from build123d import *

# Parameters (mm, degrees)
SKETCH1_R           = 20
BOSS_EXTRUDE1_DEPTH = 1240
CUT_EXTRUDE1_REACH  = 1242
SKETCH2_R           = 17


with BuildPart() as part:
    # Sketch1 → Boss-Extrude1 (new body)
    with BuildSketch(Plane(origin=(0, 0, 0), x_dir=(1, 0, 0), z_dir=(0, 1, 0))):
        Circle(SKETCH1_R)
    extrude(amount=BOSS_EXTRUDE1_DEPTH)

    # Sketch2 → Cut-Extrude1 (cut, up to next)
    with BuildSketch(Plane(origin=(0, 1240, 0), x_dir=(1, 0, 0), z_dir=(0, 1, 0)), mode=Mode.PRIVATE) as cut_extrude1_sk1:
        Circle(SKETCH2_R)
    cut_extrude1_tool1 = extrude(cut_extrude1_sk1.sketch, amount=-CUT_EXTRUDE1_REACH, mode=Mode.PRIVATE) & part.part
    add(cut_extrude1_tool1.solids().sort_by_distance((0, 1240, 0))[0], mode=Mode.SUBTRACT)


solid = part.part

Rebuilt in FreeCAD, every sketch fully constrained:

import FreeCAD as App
import Part
import Sketcher

doc = App.newDocument("Part")
body = doc.addObject("PartDesign::Body", "Body")

sketch1 = body.newObject("Sketcher::SketchObject", "Sketch")
sketch1.AttachmentSupport = (doc.getObject("XZ_Plane"), [""])
sketch1.MapMode = "FlatFace"
sketch1.addGeometry(Part.Circle(App.Vector(0, 0, 0), App.Vector(0, 0, 1), 20), False)
sketch1.addConstraint([
    Sketcher.Constraint("Coincident", 0, 3, -1, 1),
    Sketcher.Constraint("Diameter", 0, 40.0),
])
pad1 = body.newObject("PartDesign::Pad", "Pad")
pad1.Profile = sketch1
pad1.Length = 1240
pad1.Reversed = True

sketch2 = body.newObject("Sketcher::SketchObject", "Sketch001")
sketch2.AttachmentSupport = (doc.getObject("XZ_Plane"), [""])
sketch2.MapMode = "FlatFace"
sketch2.AttachmentOffset = App.Placement(App.Vector(0, 0, -1240), App.Rotation())
sketch2.addGeometry(Part.Circle(App.Vector(0, 0, 0), App.Vector(0, 0, 1), 17), False)
sketch2.addConstraint([
    Sketcher.Constraint("Coincident", 0, 3, -1, 1),
    Sketcher.Constraint("Diameter", 0, 34.0),
])
pocket1 = body.newObject("PartDesign::Pocket", "Pocket")
pocket1.Profile = sketch2
pocket1.Type = "UpToFirst"
pocket1.Reversed = True

doc.recompute()
